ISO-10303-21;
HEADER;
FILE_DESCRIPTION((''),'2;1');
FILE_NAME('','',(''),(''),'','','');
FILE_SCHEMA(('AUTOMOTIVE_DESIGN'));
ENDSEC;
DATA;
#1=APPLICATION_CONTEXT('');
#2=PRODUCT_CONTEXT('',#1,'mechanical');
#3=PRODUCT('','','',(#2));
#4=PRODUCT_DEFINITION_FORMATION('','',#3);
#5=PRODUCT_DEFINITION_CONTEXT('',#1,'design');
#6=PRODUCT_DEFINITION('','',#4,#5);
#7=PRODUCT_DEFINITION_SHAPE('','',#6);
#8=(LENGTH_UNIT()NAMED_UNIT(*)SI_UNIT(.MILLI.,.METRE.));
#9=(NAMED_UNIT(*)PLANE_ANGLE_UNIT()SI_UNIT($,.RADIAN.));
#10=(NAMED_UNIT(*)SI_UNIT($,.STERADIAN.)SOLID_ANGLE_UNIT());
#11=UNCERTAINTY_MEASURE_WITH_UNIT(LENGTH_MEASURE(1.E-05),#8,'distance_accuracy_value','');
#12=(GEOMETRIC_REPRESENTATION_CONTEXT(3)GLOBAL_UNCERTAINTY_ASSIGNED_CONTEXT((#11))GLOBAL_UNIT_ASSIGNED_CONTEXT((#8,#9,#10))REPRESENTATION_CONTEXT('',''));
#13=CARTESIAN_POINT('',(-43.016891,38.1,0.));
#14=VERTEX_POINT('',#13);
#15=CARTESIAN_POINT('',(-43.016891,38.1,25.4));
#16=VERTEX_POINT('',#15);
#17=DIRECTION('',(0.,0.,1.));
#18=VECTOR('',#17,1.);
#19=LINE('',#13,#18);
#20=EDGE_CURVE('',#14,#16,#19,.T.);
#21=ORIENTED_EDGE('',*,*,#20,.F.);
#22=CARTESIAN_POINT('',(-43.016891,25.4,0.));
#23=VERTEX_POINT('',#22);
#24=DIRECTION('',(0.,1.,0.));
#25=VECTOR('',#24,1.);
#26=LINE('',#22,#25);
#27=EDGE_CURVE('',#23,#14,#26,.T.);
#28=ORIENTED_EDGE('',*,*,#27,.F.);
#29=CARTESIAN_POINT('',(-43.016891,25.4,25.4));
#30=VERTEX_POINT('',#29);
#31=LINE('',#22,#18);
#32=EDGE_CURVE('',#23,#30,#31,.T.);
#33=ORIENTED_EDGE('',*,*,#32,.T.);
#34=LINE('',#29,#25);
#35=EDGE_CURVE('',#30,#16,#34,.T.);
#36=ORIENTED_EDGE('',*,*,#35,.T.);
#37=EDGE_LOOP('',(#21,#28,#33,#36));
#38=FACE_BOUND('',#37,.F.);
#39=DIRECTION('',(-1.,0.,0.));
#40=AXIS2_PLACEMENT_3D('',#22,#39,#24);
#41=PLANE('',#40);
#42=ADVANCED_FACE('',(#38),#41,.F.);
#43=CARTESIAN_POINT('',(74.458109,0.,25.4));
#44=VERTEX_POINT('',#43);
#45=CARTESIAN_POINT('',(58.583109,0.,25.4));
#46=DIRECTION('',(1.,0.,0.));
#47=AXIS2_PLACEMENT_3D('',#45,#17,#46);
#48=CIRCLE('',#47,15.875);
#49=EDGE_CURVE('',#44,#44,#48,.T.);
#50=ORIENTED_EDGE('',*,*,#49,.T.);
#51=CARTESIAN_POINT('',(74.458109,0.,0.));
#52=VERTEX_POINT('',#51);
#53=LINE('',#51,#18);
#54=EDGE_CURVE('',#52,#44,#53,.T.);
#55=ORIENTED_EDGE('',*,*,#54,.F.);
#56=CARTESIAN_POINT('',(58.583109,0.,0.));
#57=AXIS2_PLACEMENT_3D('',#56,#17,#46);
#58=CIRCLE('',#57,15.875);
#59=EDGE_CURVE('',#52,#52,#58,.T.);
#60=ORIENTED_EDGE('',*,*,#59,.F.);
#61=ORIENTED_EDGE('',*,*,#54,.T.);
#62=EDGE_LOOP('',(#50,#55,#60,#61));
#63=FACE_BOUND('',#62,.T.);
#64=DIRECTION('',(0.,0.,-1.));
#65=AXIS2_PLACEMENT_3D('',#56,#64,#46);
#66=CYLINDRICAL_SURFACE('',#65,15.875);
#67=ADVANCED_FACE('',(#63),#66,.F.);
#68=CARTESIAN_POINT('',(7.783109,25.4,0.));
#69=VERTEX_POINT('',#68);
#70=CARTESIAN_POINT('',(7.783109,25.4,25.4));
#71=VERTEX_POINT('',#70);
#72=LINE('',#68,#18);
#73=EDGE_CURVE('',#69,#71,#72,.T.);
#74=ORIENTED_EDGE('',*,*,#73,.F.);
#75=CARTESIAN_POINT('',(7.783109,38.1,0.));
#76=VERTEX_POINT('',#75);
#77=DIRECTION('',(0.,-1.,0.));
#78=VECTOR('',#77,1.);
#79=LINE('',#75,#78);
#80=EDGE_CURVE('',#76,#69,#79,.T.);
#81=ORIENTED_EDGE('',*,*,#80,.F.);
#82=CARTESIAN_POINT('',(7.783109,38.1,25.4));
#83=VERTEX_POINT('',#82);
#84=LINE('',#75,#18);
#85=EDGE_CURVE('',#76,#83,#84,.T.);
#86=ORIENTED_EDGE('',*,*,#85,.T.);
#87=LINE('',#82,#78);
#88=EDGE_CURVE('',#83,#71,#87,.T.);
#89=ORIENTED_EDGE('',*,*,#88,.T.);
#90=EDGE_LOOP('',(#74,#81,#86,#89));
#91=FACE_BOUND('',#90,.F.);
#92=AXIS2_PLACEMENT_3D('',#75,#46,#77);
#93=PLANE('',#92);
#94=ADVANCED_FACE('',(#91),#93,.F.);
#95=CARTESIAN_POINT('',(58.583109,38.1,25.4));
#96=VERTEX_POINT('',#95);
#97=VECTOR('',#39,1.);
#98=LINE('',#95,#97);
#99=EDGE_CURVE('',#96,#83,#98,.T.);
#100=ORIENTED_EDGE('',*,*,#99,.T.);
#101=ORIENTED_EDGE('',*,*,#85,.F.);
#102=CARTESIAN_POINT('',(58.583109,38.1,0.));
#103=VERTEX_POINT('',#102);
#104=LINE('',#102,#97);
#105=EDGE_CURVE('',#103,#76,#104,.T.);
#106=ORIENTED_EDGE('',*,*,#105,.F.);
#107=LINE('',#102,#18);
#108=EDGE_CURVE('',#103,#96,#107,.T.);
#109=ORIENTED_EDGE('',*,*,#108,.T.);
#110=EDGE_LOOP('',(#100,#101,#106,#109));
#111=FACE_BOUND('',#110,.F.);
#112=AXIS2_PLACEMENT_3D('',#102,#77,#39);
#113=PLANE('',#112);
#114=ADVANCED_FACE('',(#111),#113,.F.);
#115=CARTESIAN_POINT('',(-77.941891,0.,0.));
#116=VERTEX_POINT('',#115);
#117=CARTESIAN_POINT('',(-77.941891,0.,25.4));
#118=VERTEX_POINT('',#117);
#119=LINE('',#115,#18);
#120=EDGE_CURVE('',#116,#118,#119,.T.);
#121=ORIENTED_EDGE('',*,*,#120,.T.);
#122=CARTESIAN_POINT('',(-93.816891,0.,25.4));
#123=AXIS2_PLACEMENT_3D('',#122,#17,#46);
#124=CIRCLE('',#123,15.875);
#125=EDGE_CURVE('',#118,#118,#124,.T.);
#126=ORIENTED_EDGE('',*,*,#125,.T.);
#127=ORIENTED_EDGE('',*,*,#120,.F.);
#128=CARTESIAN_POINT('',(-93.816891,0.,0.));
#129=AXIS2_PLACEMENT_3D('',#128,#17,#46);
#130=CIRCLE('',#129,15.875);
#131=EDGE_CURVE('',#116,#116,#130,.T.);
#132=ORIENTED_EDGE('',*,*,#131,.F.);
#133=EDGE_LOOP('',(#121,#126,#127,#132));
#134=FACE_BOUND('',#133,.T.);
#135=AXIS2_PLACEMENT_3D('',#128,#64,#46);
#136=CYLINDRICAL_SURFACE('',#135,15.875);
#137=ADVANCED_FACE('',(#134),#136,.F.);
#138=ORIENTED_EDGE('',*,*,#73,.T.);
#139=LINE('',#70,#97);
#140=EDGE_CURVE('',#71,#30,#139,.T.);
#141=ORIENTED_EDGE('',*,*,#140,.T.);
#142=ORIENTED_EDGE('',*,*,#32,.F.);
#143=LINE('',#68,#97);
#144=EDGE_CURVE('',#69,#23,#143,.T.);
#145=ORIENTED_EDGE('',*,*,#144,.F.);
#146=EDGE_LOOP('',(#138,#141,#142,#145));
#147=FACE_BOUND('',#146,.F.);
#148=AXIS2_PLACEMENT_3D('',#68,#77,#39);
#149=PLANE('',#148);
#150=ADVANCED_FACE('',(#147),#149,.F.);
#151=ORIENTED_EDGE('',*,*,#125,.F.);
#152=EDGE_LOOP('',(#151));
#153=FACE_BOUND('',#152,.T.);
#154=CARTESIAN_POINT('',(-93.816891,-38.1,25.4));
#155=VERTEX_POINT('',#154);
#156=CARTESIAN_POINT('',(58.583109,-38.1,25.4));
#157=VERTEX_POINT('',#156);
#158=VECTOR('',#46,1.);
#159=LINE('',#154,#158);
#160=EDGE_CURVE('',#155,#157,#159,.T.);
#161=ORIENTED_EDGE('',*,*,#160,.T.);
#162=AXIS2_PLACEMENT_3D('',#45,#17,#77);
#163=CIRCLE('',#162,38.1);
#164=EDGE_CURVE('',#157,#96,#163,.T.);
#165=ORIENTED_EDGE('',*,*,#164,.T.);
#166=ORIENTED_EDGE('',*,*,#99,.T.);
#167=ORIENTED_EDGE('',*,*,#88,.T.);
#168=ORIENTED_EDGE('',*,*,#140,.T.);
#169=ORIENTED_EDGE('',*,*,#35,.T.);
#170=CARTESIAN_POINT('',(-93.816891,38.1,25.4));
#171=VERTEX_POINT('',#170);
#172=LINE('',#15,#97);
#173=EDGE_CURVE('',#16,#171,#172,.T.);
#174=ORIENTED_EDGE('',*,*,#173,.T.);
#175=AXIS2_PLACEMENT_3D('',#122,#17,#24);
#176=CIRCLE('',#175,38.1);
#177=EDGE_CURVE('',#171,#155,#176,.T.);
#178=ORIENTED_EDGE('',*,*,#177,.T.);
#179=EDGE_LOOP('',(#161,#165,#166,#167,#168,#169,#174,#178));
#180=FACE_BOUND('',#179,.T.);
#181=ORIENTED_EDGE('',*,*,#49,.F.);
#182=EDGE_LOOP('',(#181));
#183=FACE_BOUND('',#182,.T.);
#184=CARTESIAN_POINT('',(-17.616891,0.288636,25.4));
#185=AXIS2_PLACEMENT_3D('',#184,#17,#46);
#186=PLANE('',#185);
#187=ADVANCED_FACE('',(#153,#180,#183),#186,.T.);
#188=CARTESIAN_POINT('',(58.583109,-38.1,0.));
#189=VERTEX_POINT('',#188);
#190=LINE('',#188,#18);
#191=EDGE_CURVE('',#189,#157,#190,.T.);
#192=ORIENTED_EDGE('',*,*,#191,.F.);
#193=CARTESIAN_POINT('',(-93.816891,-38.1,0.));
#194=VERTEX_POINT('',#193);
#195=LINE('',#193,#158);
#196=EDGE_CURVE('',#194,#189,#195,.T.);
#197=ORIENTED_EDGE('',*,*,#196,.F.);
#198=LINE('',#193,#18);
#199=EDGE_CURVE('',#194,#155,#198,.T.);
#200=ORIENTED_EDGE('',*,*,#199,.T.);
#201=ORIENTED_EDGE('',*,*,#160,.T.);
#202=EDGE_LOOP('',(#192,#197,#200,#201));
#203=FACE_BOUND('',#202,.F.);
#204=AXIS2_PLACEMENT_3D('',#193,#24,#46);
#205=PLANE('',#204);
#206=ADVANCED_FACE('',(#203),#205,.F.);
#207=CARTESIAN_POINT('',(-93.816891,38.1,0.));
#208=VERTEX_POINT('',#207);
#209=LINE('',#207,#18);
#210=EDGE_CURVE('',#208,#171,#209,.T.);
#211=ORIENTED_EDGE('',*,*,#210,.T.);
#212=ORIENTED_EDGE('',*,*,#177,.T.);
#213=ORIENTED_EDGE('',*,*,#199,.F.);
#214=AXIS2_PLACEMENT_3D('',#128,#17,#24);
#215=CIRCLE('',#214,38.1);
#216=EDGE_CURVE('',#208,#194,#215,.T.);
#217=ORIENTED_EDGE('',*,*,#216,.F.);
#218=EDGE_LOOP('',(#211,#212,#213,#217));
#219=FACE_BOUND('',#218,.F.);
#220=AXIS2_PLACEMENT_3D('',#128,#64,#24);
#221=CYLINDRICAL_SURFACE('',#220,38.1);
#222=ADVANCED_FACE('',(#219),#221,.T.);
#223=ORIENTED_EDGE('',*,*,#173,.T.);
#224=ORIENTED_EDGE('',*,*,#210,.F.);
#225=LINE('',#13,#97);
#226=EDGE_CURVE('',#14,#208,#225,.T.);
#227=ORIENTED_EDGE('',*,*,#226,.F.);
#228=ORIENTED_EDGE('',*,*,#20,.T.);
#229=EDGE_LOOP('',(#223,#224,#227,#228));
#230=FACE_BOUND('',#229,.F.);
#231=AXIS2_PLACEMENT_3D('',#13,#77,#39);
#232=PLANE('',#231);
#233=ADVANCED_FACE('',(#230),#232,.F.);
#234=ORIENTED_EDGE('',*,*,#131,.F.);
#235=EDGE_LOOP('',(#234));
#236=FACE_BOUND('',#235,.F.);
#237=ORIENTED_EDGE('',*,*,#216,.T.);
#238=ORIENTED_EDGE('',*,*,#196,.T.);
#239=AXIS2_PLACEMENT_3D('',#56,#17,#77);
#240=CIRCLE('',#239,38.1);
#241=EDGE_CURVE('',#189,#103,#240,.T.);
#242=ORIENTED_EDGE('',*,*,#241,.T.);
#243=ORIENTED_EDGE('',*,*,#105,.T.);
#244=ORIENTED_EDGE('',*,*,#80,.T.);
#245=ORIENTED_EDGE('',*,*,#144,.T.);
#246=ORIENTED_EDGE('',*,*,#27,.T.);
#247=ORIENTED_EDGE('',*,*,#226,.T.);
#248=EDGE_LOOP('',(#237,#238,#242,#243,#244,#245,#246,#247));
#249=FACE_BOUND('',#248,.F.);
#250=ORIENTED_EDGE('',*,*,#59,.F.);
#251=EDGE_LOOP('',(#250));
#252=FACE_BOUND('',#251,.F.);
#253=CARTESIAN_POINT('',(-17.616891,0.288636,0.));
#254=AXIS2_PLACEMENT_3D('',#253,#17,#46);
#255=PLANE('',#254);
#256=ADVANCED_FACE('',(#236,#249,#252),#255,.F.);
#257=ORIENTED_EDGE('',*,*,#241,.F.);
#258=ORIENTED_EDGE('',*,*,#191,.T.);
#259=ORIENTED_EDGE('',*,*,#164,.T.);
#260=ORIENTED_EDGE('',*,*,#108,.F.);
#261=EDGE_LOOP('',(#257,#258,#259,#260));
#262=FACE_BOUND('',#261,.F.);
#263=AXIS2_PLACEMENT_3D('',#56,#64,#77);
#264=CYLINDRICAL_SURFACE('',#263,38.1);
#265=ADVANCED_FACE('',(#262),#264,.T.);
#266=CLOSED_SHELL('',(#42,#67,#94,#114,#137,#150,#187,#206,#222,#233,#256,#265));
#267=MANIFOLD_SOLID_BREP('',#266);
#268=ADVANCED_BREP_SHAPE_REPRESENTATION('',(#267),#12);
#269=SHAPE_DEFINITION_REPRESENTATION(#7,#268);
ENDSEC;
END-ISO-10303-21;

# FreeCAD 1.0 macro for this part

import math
import FreeCAD as App
import Part
import Sketcher

V = App.Vector
Q = App.Units.Quantity

doc = App.newDocument("Part")
params = doc.addObject("Spreadsheet::Sheet", "Params")
for row, (alias, value) in enumerate([
    ("sketch1_radius", "1.5 in"),
    ("sketch1_diameter", "1.25 in"),
    ("sketch1_width", "6 in"),
    ("sketch1_height", "0.5 in"),
    ("pad1_length", "1 in"),
], start=1):
    params.set(f"A{row}", alias)
    params.set(f"B{row}", "=" + value)
    params.setAlias(f"B{row}", alias)

body = doc.addObject("PartDesign::Body", "Body")

sketch1 = body.newObject("Sketcher::SketchObject", "Sketch")
sketch1.AttachmentSupport = (doc.getObject("XY_Plane"), [""])
sketch1.MapMode = "FlatFace"
sketch1.addGeometry(Part.LineSegment(V(-94, -38, 0), V(59, -38, 0)), False)
sketch1.addGeometry(Part.ArcOfCircle(Part.Circle(V(59, 0, 0), V(0, 0, 1), 38), math.radians(-90), math.radians(90)), False)
sketch1.addGeometry(Part.LineSegment(V(59, 38, 0), V(8, 38, 0)), False)
sketch1.addGeometry(Part.LineSegment(V(8, 38, 0), V(8, 25, 0)), False)
sketch1.addGeometry(Part.LineSegment(V(8, 25, 0), V(-43, 25, 0)), False)
sketch1.addGeometry(Part.LineSegment(V(-43, 25, 0), V(-43, 38, 0)), False)
sketch1.addGeometry(Part.LineSegment(V(-43, 38, 0), V(-94, 38, 0)), False)
sketch1.addGeometry(Part.ArcOfCircle(Part.Circle(V(-94, 0, 0), V(0, 0, 1), 38), math.radians(90), math.radians(270)), False)
sketch1.addGeometry(Part.Circle(V(-94, 0, 0), V(0, 0, 1), 16), False)
sketch1.addGeometry(Part.Circle(V(59, 0, 0), V(0, 0, 1), 16), False)
sketch1.addConstraint(Sketcher.Constraint("Tangent", 0, 2, 1, 1))
sketch1.addConstraint(Sketcher.Constraint("Tangent", 1, 2, 2, 1))
sketch1.addConstraint(Sketcher.Constraint("Coincident", 2, 2, 3, 1))
sketch1.addConstraint(Sketcher.Constraint("Coincident", 3, 2, 4, 1))
sketch1.addConstraint(Sketcher.Constraint("Coincident", 4, 2, 5, 1))
sketch1.addConstraint(Sketcher.Constraint("Coincident", 5, 2, 6, 1))
sketch1.addConstraint(Sketcher.Constraint("Tangent", 6, 2, 7, 1))
sketch1.addConstraint(Sketcher.Constraint("Tangent", 7, 2, 0, 1))
sketch1.addConstraint(Sketcher.Constraint("Horizontal", 0))
sketch1.addConstraint(Sketcher.Constraint("Horizontal", 2))
sketch1.addConstraint(Sketcher.Constraint("Vertical", 3))
sketch1.addConstraint(Sketcher.Constraint("Horizontal", 4))
sketch1.addConstraint(Sketcher.Constraint("Vertical", 5))
sketch1.addConstraint(Sketcher.Constraint("Horizontal", 6))
sketch1.addConstraint(Sketcher.Constraint("Coincident", 8, 3, 7, 3))
sketch1.addConstraint(Sketcher.Constraint("Coincident", 9, 3, 1, 3))
sketch1.addConstraint(Sketcher.Constraint("Equal", 1, 7))
sketch1.addConstraint(Sketcher.Constraint("Equal", 8, 9))
sketch1.addConstraint(Sketcher.Constraint("PointOnObject", 1, 3, -1))
sketch1.addConstraint(Sketcher.Constraint("Equal", 2, 4))
sketch1.addConstraint(Sketcher.Constraint("Equal", 4, 6))
sketch1.addConstraint(Sketcher.Constraint("Radius", 1, Q("1.5 in")))
sketch1.addConstraint(Sketcher.Constraint("Diameter", 8, Q("1.25 in")))
sketch1.addConstraint(Sketcher.Constraint("DistanceX", 0, 1, 0, 2, Q("6 in")))
sketch1.addConstraint(Sketcher.Constraint("DistanceY", 3, 2, 3, 1, Q("0.5 in")))
sketch1.addConstraint(Sketcher.Constraint("DistanceX", -1, 1, 1, 3, 58.583109))
sketch1.setExpression("Constraints[21]", "Params.sketch1_radius")
sketch1.setExpression("Constraints[22]", "Params.sketch1_diameter")
sketch1.setExpression("Constraints[23]", "Params.sketch1_width")
sketch1.setExpression("Constraints[24]", "Params.sketch1_height")
pad1 = body.newObject("PartDesign::Pad", "Pad")
pad1.Profile = sketch1
pad1.setExpression("Length", "Params.pad1_length")

doc.recompute()
